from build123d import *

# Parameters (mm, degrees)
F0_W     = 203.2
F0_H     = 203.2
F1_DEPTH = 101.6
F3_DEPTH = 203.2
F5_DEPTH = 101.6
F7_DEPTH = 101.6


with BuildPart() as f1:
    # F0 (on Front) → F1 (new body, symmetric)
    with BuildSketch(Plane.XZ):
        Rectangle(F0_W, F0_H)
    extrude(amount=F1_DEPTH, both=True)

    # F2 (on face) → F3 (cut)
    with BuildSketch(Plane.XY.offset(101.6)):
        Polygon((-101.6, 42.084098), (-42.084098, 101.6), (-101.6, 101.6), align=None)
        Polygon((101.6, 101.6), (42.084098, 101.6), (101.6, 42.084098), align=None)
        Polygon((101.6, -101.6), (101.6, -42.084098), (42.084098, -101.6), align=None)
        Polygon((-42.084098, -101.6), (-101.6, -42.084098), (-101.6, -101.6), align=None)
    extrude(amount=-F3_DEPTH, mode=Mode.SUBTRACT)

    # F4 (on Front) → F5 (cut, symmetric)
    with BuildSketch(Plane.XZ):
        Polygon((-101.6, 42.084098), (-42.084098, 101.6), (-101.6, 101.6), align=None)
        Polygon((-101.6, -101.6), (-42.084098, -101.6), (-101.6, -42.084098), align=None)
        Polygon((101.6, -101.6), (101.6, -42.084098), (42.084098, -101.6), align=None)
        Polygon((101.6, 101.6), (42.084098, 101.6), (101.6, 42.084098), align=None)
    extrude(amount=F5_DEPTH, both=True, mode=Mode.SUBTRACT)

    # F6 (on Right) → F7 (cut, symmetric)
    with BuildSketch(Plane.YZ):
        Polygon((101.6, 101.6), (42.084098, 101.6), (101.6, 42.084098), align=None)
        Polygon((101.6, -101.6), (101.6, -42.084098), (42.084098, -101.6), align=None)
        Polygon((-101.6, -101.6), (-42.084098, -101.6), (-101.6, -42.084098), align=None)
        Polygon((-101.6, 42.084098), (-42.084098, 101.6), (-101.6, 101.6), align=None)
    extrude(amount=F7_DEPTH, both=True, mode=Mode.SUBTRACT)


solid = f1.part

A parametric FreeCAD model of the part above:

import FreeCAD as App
import Part
import Sketcher
Q = App.Units.Quantity

doc = App.newDocument("Part")
params = doc.addObject("Spreadsheet::Sheet", "Params")
for row, (alias, value) in enumerate([
    ("sketch1_width", "8 in"),
    ("pad1_length", "8 in"),
    ("pocket1_length", "8 in"),
    ("pocket2_length", "8 in"),
    ("pocket3_length", "8 in"),
], start=1):
    params.set(f"A{row}", alias)
    params.set(f"B{row}", "=" + value)
    params.setAlias(f"B{row}", alias)

body = doc.addObject("PartDesign::Body", "Body")

sketch1 = body.newObject("Sketcher::SketchObject", "Sketch")
sketch1.AttachmentSupport = (doc.getObject("XZ_Plane"), [""])
sketch1.MapMode = "FlatFace"
sketch1.addGeometry([
    Part.LineSegment(App.Vector(-102, 102, 0), App.Vector(-102, -102, 0)),
    Part.LineSegment(App.Vector(-102, -102, 0), App.Vector(102, -102, 0)),
    Part.LineSegment(App.Vector(102, -102, 0), App.Vector(102, 102, 0)),
    Part.LineSegment(App.Vector(102, 102, 0), App.Vector(-102, 102, 0)),
], False)
sketch1.addConstraint([
    Sketcher.Constraint("Coincident", 0, 2, 1, 1),
    Sketcher.Constraint("Coincident", 1, 2, 2, 1),
    Sketcher.Constraint("Coincident", 2, 2, 3, 1),
    Sketcher.Constraint("Coincident", 3, 2, 0, 1),
    Sketcher.Constraint("Vertical", 0),
    Sketcher.Constraint("Horizontal", 1),
    Sketcher.Constraint("Vertical", 2),
    Sketcher.Constraint("Horizontal", 3),
    Sketcher.Constraint("Symmetric", 0, 2, 2, 2, -1, 1),
    Sketcher.Constraint("Equal", 3, 0),
    Sketcher.Constraint("DistanceX", 1, 1, 1, 2, Q("8 in")),
])
sketch1.setExpression("Constraints[10]", "Params.sketch1_width")
pad1 = body.newObject("PartDesign::Pad", "Pad")
pad1.Profile = sketch1
pad1.setExpression("Length", "Params.pad1_length")
pad1.Midplane = True

sketch2 = body.newObject("Sketcher::SketchObject", "Sketch001")
sketch2.AttachmentSupport = (doc.getObject("XY_Plane"), [""])
sketch2.MapMode = "FlatFace"
sketch2.AttachmentOffset = App.Placement(App.Vector(0, 0, 4 * 25.4), App.Rotation())
sketch2.addGeometry([
    Part.LineSegment(App.Vector(-102, 42, 0), App.Vector(-42, 102, 0)),
    Part.LineSegment(App.Vector(-42, 102, 0), App.Vector(-102, 102, 0)),
    Part.LineSegment(App.Vector(-102, 102, 0), App.Vector(-102, 42, 0)),
    Part.LineSegment(App.Vector(102, 102, 0), App.Vector(42, 102, 0)),
    Part.LineSegment(App.Vector(42, 102, 0), App.Vector(102, 42, 0)),
    Part.LineSegment(App.Vector(102, 42, 0), App.Vector(102, 102, 0)),
    Part.LineSegment(App.Vector(102, -102, 0), App.Vector(102, -42, 0)),
    Part.LineSegment(App.Vector(102, -42, 0), App.Vector(42, -102, 0)),
    Part.LineSegment(App.Vector(42, -102, 0), App.Vector(102, -102, 0)),
    Part.LineSegment(App.Vector(-42, -102, 0), App.Vector(-102, -42, 0)),
    Part.LineSegment(App.Vector(-102, -42, 0), App.Vector(-102, -102, 0)),
    Part.LineSegment(App.Vector(-102, -102, 0), App.Vector(-42, -102, 0)),
], False)
sketch2.addConstraint([
    Sketcher.Constraint("Coincident", 0, 2, 1, 1),
    Sketcher.Constraint("Coincident", 1, 2, 2, 1),
    Sketcher.Constraint("Coincident", 2, 2, 0, 1),
    Sketcher.Constraint("Coincident", 3, 2, 4, 1),
    Sketcher.Constraint("Coincident", 4, 2, 5, 1),
    Sketcher.Constraint("Coincident", 5, 2, 3, 1),
    Sketcher.Constraint("Coincident", 6, 2, 7, 1),
    Sketcher.Constraint("Coincident", 7, 2, 8, 1),
    Sketcher.Constraint("Coincident", 8, 2, 6, 1),
    Sketcher.Constraint("Coincident", 9, 2, 10, 1),
    Sketcher.Constraint("Coincident", 10, 2, 11, 1),
    Sketcher.Constraint("Coincident", 11, 2, 9, 1),
    Sketcher.Constraint("Horizontal", 1),
    Sketcher.Constraint("Vertical", 2),
    Sketcher.Constraint("Horizontal", 3),
    Sketcher.Constraint("Vertical", 5),
    Sketcher.Constraint("Vertical", 6),
    Sketcher.Constraint("Horizontal", 8),
    Sketcher.Constraint("Vertical", 10),
    Sketcher.Constraint("Horizontal", 11),
    Sketcher.Constraint("Symmetric", 2, 2, 6, 2, -1, 1),
    Sketcher.Constraint("Symmetric", 0, 2, 7, 2, -1, 1),
    Sketcher.Constraint("Symmetric", 4, 2, 9, 2, -1, 1),
    Sketcher.Constraint("Symmetric", 3, 2, 11, 2, -1, 1),
    Sketcher.Constraint("Symmetric", 0, 2, 3, 2, -2),
    Sketcher.Constraint("Symmetric", 2, 2, 4, 2, -2),
    Sketcher.Constraint("Perpendicular", 0, 4),
    Sketcher.Constraint("DistanceY", -1, 1, 0, 2, Q("4 in")),
    Sketcher.Constraint("DistanceX", 1, 2, -1, 1, Q("4 in")),
    Sketcher.Constraint("DistanceX", 1, 2, 1, 1, Q("59.515902 mm")),
])
pocket1 = body.newObject("PartDesign::Pocket", "Pocket")
pocket1.Profile = sketch2
pocket1.setExpression("Length", "Params.pocket1_length")

sketch3 = body.newObject("Sketcher::SketchObject", "Sketch002")
sketch3.AttachmentSupport = (doc.getObject("XZ_Plane"), [""])
sketch3.MapMode = "FlatFace"
sketch3.addGeometry([
    Part.LineSegment(App.Vector(-102, 42, 0), App.Vector(-42, 102, 0)),
    Part.LineSegment(App.Vector(-42, 102, 0), App.Vector(-102, 102, 0)),
    Part.LineSegment(App.Vector(-102, 102, 0), App.Vector(-102, 42, 0)),
    Part.LineSegment(App.Vector(-102, -102, 0), App.Vector(-42, -102, 0)),
    Part.LineSegment(App.Vector(-42, -102, 0), App.Vector(-102, -42, 0)),
    Part.LineSegment(App.Vector(-102, -42, 0), App.Vector(-102, -102, 0)),
    Part.LineSegment(App.Vector(102, -102, 0), App.Vector(102, -42, 0)),
    Part.LineSegment(App.Vector(102, -42, 0), App.Vector(42, -102, 0)),
    Part.LineSegment(App.Vector(42, -102, 0), App.Vector(102, -102, 0)),
    Part.LineSegment(App.Vector(102, 102, 0), App.Vector(42, 102, 0)),
    Part.LineSegment(App.Vector(42, 102, 0), App.Vector(102, 42, 0)),
    Part.LineSegment(App.Vector(102, 42, 0), App.Vector(102, 102, 0)),
], False)
sketch3.addConstraint([
    Sketcher.Constraint("Coincident", 0, 2, 1, 1),
    Sketcher.Constraint("Coincident", 1, 2, 2, 1),
    Sketcher.Constraint("Coincident", 2, 2, 0, 1),
    Sketcher.Constraint("Coincident", 3, 2, 4, 1),
    Sketcher.Constraint("Coincident", 4, 2, 5, 1),
    Sketcher.Constraint("Coincident", 5, 2, 3, 1),
    Sketcher.Constraint("Coincident", 6, 2, 7, 1),
    Sketcher.Constraint("Coincident", 7, 2, 8, 1),
    Sketcher.Constraint("Coincident", 8, 2, 6, 1),
    Sketcher.Constraint("Coincident", 9, 2, 10, 1),
    Sketcher.Constraint("Coincident", 10, 2, 11, 1),
    Sketcher.Constraint("Coincident", 11, 2, 9, 1),
    Sketcher.Constraint("Horizontal", 1),
    Sketcher.Constraint("Vertical", 2),
    Sketcher.Constraint("Horizontal", 3),
    Sketcher.Constraint("Vertical", 5),
    Sketcher.Constraint("Vertical", 6),
    Sketcher.Constraint("Horizontal", 8),
    Sketcher.Constraint("Horizontal", 9),
    Sketcher.Constraint("Vertical", 11),
    Sketcher.Constraint("Symmetric", 2, 2, 6, 2, -1, 1),
    Sketcher.Constraint("Symmetric", 0, 2, 7, 2, -1, 1),
    Sketcher.Constraint("Symmetric", 3, 2, 9, 2, -1, 1),
    Sketcher.Constraint("Symmetric", 4, 2, 10, 2, -1, 1),
    Sketcher.Constraint("Symmetric", 4, 2, 6, 2, -2),
    Sketcher.Constraint("Symmetric", 3, 2, 7, 2, -2),
    Sketcher.Constraint("Perpendicular", 0, 4),
    Sketcher.Constraint("DistanceY", -1, 1, 0, 2, Q("4 in")),
    Sketcher.Constraint("DistanceX", 1, 2, -1, 1, Q("4 in")),
    Sketcher.Constraint("DistanceX", 1, 2, 1, 1, Q("59.515902 mm")),
])
pocket2 = body.newObject("PartDesign::Pocket", "Pocket001")
pocket2.Profile = sketch3
pocket2.setExpression("Length", "Params.pocket2_length")
pocket2.Midplane = True

sketch4 = body.newObject("Sketcher::SketchObject", "Sketch003")
sketch4.AttachmentSupport = (doc.getObject("YZ_Plane"), [""])
sketch4.MapMode = "FlatFace"
sketch4.addGeometry([
    Part.LineSegment(App.Vector(102, 102, 0), App.Vector(42, 102, 0)),
    Part.LineSegment(App.Vector(42, 102, 0), App.Vector(102, 42, 0)),
    Part.LineSegment(App.Vector(102, 42, 0), App.Vector(102, 102, 0)),
    Part.LineSegment(App.Vector(102, -102, 0), App.Vector(102, -42, 0)),
    Part.LineSegment(App.Vector(102, -42, 0), App.Vector(42, -102, 0)),
    Part.LineSegment(App.Vector(42, -102, 0), App.Vector(102, -102, 0)),
    Part.LineSegment(App.Vector(-102, -102, 0), App.Vector(-42, -102, 0)),
    Part.LineSegment(App.Vector(-42, -102, 0), App.Vector(-102, -42, 0)),
    Part.LineSegment(App.Vector(-102, -42, 0), App.Vector(-102, -102, 0)),
    Part.LineSegment(App.Vector(-102, 42, 0), App.Vector(-42, 102, 0)),
    Part.LineSegment(App.Vector(-42, 102, 0), App.Vector(-102, 102, 0)),
    Part.LineSegment(App.Vector(-102, 102, 0), App.Vector(-102, 42, 0)),
], False)
sketch4.addConstraint([
    Sketcher.Constraint("Coincident", 0, 2, 1, 1),
    Sketcher.Constraint("Coincident", 1, 2, 2, 1),
    Sketcher.Constraint("Coincident", 2, 2, 0, 1),
    Sketcher.Constraint("Coincident", 3, 2, 4, 1),
    Sketcher.Constraint("Coincident", 4, 2, 5, 1),
    Sketcher.Constraint("Coincident", 5, 2, 3, 1),
    Sketcher.Constraint("Coincident", 6, 2, 7, 1),
    Sketcher.Constraint("Coincident", 7, 2, 8, 1),
    Sketcher.Constraint("Coincident", 8, 2, 6, 1),
    Sketcher.Constraint("Coincident", 9, 2, 10, 1),
    Sketcher.Constraint("Coincident", 10, 2, 11, 1),
    Sketcher.Constraint("Coincident", 11, 2, 9, 1),
    Sketcher.Constraint("Horizontal", 0),
    Sketcher.Constraint("Vertical", 2),
    Sketcher.Constraint("Vertical", 3),
    Sketcher.Constraint("Horizontal", 5),
    Sketcher.Constraint("Horizontal", 6),
    Sketcher.Constraint("Vertical", 8),
    Sketcher.Constraint("Horizontal", 10),
    Sketcher.Constraint("Vertical", 11),
    Sketcher.Constraint("Symmetric", 0, 2, 6, 2, -1, 1),
    Sketcher.Constraint("Symmetric", 1, 2, 7, 2, -1, 1),
    Sketcher.Constraint("Symmetric", 4, 2, 9, 2, -1, 1),
    Sketcher.Constraint("Symmetric", 3, 2, 11, 2, -1, 1),
    Sketcher.Constraint("Symmetric", 4, 2, 6, 2, -2),
    Sketcher.Constraint("Symmetric", 3, 2, 7, 2, -2),
    Sketcher.Constraint("Perpendicular", 1, 4),
    Sketcher.Constraint("DistanceY", -1, 1, 0, 2, Q("4 in")),
    Sketcher.Constraint("DistanceX", -1, 1, 1, 2, Q("4 in")),
    Sketcher.Constraint("DistanceX", 0, 2, 0, 1, Q("59.515902 mm")),
])
pocket3 = body.newObject("PartDesign::Pocket", "Pocket002")
pocket3.Profile = sketch4
pocket3.setExpression("Length", "Params.pocket3_length")
pocket3.Midplane = True

doc.recompute()
